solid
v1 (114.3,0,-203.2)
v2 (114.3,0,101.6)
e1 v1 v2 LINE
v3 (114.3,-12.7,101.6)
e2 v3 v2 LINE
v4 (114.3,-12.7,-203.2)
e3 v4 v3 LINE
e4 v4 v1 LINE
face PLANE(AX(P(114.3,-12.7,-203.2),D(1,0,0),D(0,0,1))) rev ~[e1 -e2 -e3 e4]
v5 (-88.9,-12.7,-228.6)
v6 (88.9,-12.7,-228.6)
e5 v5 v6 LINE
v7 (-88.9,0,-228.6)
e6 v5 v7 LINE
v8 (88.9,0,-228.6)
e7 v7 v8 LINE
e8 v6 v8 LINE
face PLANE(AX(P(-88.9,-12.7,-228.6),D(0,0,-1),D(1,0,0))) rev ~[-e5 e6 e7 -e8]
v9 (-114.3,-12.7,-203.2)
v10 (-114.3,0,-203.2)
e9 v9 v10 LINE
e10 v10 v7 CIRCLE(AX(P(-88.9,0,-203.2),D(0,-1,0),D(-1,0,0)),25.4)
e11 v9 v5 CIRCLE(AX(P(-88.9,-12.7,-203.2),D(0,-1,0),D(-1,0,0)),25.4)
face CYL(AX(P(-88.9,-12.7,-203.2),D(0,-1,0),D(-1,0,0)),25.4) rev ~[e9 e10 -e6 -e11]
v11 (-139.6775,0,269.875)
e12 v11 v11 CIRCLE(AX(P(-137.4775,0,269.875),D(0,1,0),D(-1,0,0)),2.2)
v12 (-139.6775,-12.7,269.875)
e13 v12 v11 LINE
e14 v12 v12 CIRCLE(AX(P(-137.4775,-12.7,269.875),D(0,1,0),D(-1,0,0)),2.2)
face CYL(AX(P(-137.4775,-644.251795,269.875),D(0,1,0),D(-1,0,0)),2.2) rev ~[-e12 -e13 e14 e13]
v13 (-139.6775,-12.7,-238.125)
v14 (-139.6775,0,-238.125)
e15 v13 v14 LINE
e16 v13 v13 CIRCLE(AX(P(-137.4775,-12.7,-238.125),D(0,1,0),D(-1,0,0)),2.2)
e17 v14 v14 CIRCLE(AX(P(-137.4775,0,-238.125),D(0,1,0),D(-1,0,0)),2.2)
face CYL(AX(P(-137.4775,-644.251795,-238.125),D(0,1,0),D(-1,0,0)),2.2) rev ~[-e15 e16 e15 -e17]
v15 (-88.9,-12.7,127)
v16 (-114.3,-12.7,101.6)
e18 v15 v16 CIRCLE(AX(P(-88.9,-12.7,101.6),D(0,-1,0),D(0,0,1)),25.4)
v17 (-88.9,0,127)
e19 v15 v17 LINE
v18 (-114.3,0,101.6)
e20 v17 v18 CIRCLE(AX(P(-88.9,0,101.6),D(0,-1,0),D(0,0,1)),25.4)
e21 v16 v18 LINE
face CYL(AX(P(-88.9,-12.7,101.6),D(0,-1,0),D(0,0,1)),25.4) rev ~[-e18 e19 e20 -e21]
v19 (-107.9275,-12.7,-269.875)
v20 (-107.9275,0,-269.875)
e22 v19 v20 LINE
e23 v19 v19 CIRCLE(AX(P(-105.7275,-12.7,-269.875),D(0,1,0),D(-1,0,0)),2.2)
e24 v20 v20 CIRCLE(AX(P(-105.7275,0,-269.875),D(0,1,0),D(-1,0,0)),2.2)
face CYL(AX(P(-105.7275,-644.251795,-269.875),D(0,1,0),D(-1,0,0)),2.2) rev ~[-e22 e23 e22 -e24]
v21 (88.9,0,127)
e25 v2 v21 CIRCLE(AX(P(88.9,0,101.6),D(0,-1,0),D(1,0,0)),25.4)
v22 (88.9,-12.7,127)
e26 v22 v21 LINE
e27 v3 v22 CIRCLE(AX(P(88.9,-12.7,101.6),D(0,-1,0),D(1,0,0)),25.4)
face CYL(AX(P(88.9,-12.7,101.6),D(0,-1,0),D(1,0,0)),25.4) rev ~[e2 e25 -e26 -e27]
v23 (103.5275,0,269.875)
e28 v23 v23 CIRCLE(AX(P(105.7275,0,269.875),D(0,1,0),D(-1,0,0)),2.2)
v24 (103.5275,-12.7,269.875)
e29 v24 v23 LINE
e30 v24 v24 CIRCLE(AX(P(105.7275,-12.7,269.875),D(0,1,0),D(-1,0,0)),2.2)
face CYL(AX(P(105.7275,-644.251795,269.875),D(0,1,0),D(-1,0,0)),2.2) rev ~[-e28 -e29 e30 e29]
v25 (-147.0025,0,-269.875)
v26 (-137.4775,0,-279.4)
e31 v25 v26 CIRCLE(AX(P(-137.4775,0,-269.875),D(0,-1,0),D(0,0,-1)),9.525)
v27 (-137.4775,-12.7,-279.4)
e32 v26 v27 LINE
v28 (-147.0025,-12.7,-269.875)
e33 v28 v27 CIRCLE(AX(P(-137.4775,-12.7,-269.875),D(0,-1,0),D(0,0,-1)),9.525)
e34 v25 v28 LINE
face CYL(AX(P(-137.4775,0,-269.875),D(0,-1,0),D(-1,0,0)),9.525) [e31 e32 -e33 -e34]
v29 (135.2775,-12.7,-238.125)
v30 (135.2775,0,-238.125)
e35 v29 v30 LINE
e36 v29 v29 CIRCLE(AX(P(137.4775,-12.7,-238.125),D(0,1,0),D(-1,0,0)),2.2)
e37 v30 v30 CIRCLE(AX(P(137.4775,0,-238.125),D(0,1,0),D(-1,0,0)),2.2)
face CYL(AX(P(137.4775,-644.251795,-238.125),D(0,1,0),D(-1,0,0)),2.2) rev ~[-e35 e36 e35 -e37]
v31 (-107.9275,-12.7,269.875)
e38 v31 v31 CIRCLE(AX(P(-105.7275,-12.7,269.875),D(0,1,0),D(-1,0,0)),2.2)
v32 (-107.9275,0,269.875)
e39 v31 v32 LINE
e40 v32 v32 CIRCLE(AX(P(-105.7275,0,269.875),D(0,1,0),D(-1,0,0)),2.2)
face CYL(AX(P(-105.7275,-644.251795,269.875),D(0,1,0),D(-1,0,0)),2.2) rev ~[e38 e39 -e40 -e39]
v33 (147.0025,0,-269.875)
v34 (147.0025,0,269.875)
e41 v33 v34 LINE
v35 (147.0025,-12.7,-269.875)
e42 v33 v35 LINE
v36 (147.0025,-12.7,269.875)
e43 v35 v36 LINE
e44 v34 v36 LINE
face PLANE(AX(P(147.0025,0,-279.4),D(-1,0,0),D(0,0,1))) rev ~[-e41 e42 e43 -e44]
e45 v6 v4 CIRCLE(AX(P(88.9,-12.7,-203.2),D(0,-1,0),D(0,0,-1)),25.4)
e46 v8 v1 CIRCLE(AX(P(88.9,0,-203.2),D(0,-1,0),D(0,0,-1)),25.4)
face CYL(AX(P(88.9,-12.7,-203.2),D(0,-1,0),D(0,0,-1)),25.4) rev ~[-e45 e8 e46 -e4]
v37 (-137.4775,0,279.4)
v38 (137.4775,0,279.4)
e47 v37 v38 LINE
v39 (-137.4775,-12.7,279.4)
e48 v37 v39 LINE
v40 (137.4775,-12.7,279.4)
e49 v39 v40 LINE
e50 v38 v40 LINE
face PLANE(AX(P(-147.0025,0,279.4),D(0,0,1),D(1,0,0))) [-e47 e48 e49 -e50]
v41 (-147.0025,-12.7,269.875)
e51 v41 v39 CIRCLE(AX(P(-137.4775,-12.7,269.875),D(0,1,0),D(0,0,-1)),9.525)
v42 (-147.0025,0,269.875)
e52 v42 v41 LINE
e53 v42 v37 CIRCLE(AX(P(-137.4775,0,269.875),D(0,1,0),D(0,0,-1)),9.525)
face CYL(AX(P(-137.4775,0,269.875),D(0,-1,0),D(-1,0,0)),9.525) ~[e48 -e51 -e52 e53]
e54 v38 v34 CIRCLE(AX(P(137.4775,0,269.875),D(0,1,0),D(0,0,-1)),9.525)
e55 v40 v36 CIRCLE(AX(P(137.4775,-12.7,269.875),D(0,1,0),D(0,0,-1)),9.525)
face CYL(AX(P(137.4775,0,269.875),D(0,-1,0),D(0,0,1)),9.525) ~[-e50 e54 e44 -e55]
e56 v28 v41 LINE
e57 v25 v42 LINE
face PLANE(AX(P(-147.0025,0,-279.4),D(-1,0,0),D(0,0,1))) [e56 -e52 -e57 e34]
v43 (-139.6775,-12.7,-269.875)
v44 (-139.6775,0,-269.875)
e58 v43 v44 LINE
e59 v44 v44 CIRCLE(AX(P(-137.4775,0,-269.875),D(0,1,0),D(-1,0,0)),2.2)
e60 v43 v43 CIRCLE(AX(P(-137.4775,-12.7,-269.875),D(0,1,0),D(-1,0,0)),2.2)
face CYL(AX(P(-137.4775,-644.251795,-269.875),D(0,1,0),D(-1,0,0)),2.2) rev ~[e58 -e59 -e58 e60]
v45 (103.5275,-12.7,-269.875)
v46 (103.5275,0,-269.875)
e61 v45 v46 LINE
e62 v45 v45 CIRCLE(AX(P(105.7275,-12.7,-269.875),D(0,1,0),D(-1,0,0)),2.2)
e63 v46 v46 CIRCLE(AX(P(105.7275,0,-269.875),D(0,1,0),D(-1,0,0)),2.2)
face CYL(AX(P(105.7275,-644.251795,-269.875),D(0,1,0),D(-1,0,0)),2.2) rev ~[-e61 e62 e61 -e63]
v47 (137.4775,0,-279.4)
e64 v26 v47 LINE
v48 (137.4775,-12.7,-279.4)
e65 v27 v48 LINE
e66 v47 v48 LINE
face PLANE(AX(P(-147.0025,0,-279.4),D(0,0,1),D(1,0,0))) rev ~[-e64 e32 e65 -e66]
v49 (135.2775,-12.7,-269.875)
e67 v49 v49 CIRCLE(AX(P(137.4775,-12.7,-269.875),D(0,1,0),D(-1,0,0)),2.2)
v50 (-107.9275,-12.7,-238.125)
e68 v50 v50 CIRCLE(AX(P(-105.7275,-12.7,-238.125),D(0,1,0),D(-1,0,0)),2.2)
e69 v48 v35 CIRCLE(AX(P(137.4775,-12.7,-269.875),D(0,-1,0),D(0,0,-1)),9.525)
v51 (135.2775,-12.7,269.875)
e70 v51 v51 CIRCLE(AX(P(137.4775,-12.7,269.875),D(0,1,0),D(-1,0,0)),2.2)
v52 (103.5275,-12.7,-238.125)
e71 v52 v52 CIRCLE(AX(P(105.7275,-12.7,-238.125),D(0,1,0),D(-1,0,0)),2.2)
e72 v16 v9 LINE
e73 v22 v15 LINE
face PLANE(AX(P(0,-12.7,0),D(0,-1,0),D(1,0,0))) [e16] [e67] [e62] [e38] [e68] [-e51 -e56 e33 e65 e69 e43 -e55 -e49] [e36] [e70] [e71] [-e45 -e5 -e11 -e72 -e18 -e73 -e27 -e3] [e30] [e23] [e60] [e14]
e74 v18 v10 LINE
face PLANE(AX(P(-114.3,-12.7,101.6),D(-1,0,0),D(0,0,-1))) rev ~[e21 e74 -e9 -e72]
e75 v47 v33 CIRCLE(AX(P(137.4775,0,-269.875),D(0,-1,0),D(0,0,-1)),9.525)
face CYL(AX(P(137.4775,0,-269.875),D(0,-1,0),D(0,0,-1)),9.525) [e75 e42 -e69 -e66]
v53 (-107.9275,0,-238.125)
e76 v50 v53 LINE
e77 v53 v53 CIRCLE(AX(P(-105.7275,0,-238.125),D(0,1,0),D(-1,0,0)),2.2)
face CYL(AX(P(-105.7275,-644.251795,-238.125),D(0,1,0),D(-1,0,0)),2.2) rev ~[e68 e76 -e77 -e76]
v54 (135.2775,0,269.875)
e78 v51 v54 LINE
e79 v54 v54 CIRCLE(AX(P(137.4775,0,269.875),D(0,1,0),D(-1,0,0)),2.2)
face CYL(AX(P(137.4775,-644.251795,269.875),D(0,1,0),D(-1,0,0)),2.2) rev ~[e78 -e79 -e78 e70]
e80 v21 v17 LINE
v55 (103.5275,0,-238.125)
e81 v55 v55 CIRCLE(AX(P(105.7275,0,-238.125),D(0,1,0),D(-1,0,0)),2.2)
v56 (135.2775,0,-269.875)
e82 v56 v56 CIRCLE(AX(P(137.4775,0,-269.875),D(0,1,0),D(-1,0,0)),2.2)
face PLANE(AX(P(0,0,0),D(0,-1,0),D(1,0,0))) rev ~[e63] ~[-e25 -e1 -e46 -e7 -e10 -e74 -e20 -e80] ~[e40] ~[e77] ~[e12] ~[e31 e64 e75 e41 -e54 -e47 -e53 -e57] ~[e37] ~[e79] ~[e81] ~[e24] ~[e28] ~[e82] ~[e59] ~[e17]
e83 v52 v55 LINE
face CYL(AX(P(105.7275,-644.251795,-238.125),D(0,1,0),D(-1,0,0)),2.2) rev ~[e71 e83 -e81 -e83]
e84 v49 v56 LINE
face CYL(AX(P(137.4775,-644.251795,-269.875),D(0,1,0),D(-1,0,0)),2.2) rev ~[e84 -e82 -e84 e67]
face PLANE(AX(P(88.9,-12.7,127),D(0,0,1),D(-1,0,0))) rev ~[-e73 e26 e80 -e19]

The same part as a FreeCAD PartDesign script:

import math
import FreeCAD as App
import Part
import Sketcher
Q = App.Units.Quantity


def edges_at(feature, points):
    """Names of the edges that pass closest to the given points."""
    edges = feature.Shape.Edges
    near = lambda p: min(range(len(edges)), key=lambda i: edges[i].distToShape(Part.Vertex(*p))[0])
    return sorted({f"Edge{near(p) + 1}" for p in points})


def add_polygon(sketch, points):
    """Adds a closed chain of lines whose ends are joined by coincident constraints."""
    first, n = sketch.GeometryCount, len(points)
    for a, b in zip(points, points[1:] + points[:1]):
        sketch.addGeometry(Part.LineSegment(App.Vector(*a, 0), App.Vector(*b, 0)), False)
    for i in range(n):
        sketch.addConstraint(Sketcher.Constraint("Coincident", first + i, 2, first + (i + 1) % n, 1))

doc = App.newDocument("Part")
body = doc.addObject("PartDesign::Body", "Body")

# Sketch on XZ plane
sketch1 = body.newObject("Sketcher::SketchObject", "Sketch")
sketch1.AttachmentSupport = (doc.getObject("XZ_Plane"), [""])
sketch1.MapMode = "FlatFace"
add_polygon(sketch1, [(-147, 279), (-147, -279), (147, -279), (147, 279)])  # lines 0-3
sketch1.addConstraint([
    Sketcher.Constraint("Vertical", 0),
    Sketcher.Constraint("Horizontal", 1),
    Sketcher.Constraint("Vertical", 2),
    Sketcher.Constraint("Horizontal", 3),
    Sketcher.Constraint("Symmetric", 0, 2, 2, 2, -1, 1),
    Sketcher.Constraint("DistanceY", 0, 2, 0, 1, Q("22 in")),
    Sketcher.Constraint("DistanceX", 1, 1, 1, 2, Q("11.575 in")),
])
pad1 = body.newObject("PartDesign::Pad", "Pad")
pad1.Profile = sketch1
pad1.Length = Q("0.5 in")

# Sketch on XZ plane
sketch2 = body.newObject("Sketcher::SketchObject", "Sketch001")
sketch2.AttachmentSupport = (doc.getObject("XZ_Plane"), [""])
sketch2.MapMode = "FlatFace"
sketch2.AttachmentOffset = App.Placement(App.Vector(0, 0, 0.5 * 25.4), App.Rotation())
sketch2.addGeometry([
    Part.Circle(App.Vector(-137.5, 269.9, 0), App.Vector(0, 0, 1), 2.2),  # 0
    Part.Circle(App.Vector(-105.7, 269.9, 0), App.Vector(0, 0, 1), 2.2),  # 1
    Part.Circle(App.Vector(105.7, 269.9, 0), App.Vector(0, 0, 1), 2.2),  # 2
    Part.Circle(App.Vector(137.5, 269.9, 0), App.Vector(0, 0, 1), 2.2),  # 3
    Part.Circle(App.Vector(105.7, -238.1, 0), App.Vector(0, 0, 1), 2.2),  # 4
    Part.Circle(App.Vector(137.5, -238.1, 0), App.Vector(0, 0, 1), 2.2),  # 5
    Part.Circle(App.Vector(137.5, -269.9, 0), App.Vector(0, 0, 1), 2.2),  # 6
    Part.Circle(App.Vector(105.7, -269.9, 0), App.Vector(0, 0, 1), 2.2),  # 7
    Part.Circle(App.Vector(-105.7, -269.9, 0), App.Vector(0, 0, 1), 2.2),  # 8
    Part.Circle(App.Vector(-137.5, -269.9, 0), App.Vector(0, 0, 1), 2.2),  # 9
    Part.Circle(App.Vector(-137.5, -238.1, 0), App.Vector(0, 0, 1), 2.2),  # 10
    Part.Circle(App.Vector(-105.7, -238.1, 0), App.Vector(0, 0, 1), 2.2),  # 11
], False)
sketch2.addConstraint([
    Sketcher.Constraint("Equal", 0, 1),
    Sketcher.Constraint("Equal", 1, 2),
    Sketcher.Constraint("Equal", 2, 3),
    Sketcher.Constraint("Equal", 3, 4),
    Sketcher.Constraint("Equal", 4, 5),
    Sketcher.Constraint("Equal", 5, 6),
    Sketcher.Constraint("Equal", 6, 7),
    Sketcher.Constraint("Equal", 7, 8),
    Sketcher.Constraint("Equal", 8, 9),
    Sketcher.Constraint("Equal", 9, 10),
    Sketcher.Constraint("Equal", 10, 11),
    Sketcher.Constraint("Symmetric", 0, 3, 6, 3, -1, 1),
    Sketcher.Constraint("Symmetric", 1, 3, 7, 3, -1, 1),
    Sketcher.Constraint("Symmetric", 2, 3, 8, 3, -1, 1),
    Sketcher.Constraint("Symmetric", 3, 3, 9, 3, -1, 1),
    Sketcher.Constraint("Symmetric", 1, 3, 2, 3, -2),
    Sketcher.Constraint("Symmetric", 0, 3, 3, 3, -2),
    Sketcher.Constraint("Symmetric", 5, 3, 10, 3, -2),
    Sketcher.Constraint("Symmetric", 4, 3, 11, 3, -2),
    Sketcher.Constraint("Horizontal", 0, 3, 1, 3),
    Sketcher.Constraint("Horizontal", 4, 3, 5, 3),
    Sketcher.Constraint("Vertical", 2, 3, 4, 3),
    Sketcher.Constraint("Vertical", 3, 3, 5, 3),
    Sketcher.Constraint("DistanceY", 4, 3, 2, 3, Q("20 in")),
    Sketcher.Constraint("Diameter", 0, Q("4.4 mm")),
    Sketcher.Constraint("DistanceX", 0, 3, 1, 3, Q("1.25 in")),
    Sketcher.Constraint("DistanceY", 6, 3, 5, 3, Q("1.25 in")),
    Sketcher.Constraint("DistanceX", 1, 3, 2, 3, Q("8.325 in")),
])
doc.recompute()
hole = body.newObject("PartDesign::Hole", "Hole")
hole.Profile = sketch2
hole.ThreadType = "None"
hole.Diameter = 4.4
hole.DepthType = "ThroughAll"
doc.recompute()

fillet = body.newObject("PartDesign::Fillet", "Fillet")
fillet.Base = (hole, edges_at(hole, [
    (147.002, -6.35, 279.4),
    (147.002, -6.35, -279.4),
    (-147.002, -6.35, -279.4),
    (-147.002, -6.35, 279.4),
]))
fillet.Radius = Q("0.375 in")

# Sketch on XZ plane
sketch3 = body.newObject("Sketcher::SketchObject", "Sketch002")
sketch3.AttachmentSupport = (doc.getObject("XZ_Plane"), [""])
sketch3.MapMode = "FlatFace"
sketch3.AttachmentOffset = App.Placement(App.Vector(0, 0, 0.5 * 25.4), App.Rotation())
sketch3.addGeometry([
    Part.LineSegment(App.Vector(89, 127, 0), App.Vector(-89, 127, 0)),  # 0
    Part.ArcOfCircle(Part.Circle(App.Vector(-89, 102, 0), App.Vector(0, 0, 1), 25), math.radians(90), math.radians(180)),  # 1
    Part.LineSegment(App.Vector(-114, 102, 0), App.Vector(-114, -203, 0)),  # 2
    Part.ArcOfCircle(Part.Circle(App.Vector(-89, -203, 0), App.Vector(0, 0, 1), 25), math.radians(180), math.radians(270)),  # 3
    Part.LineSegment(App.Vector(-89, -229, 0), App.Vector(89, -229, 0)),  # 4
    Part.ArcOfCircle(Part.Circle(App.Vector(89, -203, 0), App.Vector(0, 0, 1), 25), math.radians(-90), math.radians(0)),  # 5
    Part.LineSegment(App.Vector(114, -203, 0), App.Vector(114, 102, 0)),  # 6
    Part.ArcOfCircle(Part.Circle(App.Vector(89, 102, 0), App.Vector(0, 0, 1), 25), math.radians(0), math.radians(90)),  # 7
], False)
sketch3.addConstraint([
    Sketcher.Constraint("Tangent", 0, 2, 1, 1),
    Sketcher.Constraint("Tangent", 1, 2, 2, 1),
    Sketcher.Constraint("Tangent", 2, 2, 3, 1),
    Sketcher.Constraint("Tangent", 3, 2, 4, 1),
    Sketcher.Constraint("Tangent", 4, 2, 5, 1),
    Sketcher.Constraint("Tangent", 5, 2, 6, 1),
    Sketcher.Constraint("Tangent", 6, 2, 7, 1),
    Sketcher.Constraint("Tangent", 7, 2, 0, 1),
    Sketcher.Constraint("Horizontal", 0),
    Sketcher.Constraint("Vertical", 2),
    Sketcher.Constraint("Horizontal", 4),
    Sketcher.Constraint("Vertical", 6),
    Sketcher.Constraint("Equal", 1, 3),
    Sketcher.Constraint("Equal", 3, 5),
    Sketcher.Constraint("Equal", 5, 7),
    Sketcher.Constraint("Radius", 1, Q("1 in")),
    Sketcher.Constraint("DistanceX", 0, 2, 0, 1, Q("7 in")),
    Sketcher.Constraint("DistanceY", 2, 2, 2, 1, Q("12 in")),
    Sketcher.Constraint("DistanceY", -1, 1, 1, 3, Q("4 in")),
    Sketcher.Constraint("DistanceX", 1, 3, -1, 1, Q("3.5 in")),
])
pocket1 = body.newObject("PartDesign::Pocket", "Pocket")
pocket1.Profile = sketch3
pocket1.Type = "ThroughAll"

doc.recompute()
